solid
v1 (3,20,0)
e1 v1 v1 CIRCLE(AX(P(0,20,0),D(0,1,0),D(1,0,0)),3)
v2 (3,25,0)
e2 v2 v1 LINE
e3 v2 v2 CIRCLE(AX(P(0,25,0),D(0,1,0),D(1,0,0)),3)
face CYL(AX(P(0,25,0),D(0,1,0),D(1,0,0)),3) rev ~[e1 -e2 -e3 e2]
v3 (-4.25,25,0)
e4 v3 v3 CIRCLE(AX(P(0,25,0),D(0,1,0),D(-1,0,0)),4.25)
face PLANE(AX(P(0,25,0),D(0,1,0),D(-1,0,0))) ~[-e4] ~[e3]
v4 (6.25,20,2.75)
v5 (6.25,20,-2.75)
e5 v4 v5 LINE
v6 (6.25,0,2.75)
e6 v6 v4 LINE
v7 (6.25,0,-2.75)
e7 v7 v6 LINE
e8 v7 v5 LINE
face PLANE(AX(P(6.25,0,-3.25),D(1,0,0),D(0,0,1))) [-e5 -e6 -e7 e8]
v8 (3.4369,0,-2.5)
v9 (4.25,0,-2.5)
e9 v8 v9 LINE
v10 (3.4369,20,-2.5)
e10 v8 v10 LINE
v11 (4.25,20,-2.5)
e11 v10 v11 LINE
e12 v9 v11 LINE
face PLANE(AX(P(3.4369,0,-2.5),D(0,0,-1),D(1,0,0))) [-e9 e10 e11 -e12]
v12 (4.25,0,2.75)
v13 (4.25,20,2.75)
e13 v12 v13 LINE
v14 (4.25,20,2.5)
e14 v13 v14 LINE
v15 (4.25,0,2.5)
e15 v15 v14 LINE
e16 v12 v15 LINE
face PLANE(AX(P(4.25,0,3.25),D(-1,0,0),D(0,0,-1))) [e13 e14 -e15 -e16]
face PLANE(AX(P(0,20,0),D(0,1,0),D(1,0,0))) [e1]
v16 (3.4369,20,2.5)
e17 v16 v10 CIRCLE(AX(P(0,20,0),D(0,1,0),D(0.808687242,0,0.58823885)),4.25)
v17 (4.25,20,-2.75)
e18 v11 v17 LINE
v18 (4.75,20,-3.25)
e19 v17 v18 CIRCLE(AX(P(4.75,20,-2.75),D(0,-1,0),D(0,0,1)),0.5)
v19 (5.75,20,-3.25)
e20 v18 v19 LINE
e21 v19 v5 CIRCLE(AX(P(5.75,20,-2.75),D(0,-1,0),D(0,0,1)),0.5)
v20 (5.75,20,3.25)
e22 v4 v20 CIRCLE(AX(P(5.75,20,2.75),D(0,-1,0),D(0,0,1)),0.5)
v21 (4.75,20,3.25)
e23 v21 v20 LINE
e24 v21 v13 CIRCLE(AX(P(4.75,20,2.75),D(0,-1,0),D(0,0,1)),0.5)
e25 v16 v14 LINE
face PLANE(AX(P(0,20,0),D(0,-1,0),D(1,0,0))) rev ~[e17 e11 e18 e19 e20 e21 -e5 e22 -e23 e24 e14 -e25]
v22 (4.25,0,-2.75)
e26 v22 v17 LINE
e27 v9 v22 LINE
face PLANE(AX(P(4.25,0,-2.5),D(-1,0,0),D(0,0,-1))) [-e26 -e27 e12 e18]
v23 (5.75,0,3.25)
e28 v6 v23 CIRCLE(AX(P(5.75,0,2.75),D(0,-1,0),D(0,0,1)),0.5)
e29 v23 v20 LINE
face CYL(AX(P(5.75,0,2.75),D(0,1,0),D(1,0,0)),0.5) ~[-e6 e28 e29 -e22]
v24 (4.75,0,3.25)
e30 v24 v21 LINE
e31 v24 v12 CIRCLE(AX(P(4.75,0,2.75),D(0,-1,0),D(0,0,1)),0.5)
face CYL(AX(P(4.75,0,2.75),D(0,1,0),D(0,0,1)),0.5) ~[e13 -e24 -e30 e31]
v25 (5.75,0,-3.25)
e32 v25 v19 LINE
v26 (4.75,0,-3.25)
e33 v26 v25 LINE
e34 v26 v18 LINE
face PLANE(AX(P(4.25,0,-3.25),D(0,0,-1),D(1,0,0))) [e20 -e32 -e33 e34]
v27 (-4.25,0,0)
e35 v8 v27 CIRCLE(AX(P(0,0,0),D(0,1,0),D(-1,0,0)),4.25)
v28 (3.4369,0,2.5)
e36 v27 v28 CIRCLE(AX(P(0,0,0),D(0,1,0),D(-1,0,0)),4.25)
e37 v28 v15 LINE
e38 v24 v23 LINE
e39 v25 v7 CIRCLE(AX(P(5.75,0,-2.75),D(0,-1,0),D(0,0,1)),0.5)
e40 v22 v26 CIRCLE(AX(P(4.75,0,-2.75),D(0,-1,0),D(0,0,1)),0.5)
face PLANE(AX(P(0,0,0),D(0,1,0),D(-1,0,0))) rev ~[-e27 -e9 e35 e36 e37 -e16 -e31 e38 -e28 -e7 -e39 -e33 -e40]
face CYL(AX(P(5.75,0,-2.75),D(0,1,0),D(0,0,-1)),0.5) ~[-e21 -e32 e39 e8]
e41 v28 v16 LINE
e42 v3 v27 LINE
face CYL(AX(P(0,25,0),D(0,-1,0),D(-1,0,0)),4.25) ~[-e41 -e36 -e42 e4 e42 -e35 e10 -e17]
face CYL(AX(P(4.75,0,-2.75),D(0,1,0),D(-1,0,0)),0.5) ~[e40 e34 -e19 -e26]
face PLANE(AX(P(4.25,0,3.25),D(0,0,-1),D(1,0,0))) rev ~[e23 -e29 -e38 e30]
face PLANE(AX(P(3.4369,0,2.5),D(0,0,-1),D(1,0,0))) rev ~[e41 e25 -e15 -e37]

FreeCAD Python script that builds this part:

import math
import FreeCAD as App
import Part
import Sketcher
Q = App.Units.Quantity


def edges_at(feature, points):
    """Names of the edges that pass closest to the given points."""
    edges = feature.Shape.Edges
    near = lambda p: min(range(len(edges)), key=lambda i: edges[i].distToShape(Part.Vertex(*p))[0])
    return sorted({f"Edge{near(p) + 1}" for p in points})


def add_polygon(sketch, points):
    """Adds a closed chain of lines whose ends are joined by coincident constraints."""
    first, n = sketch.GeometryCount, len(points)
    for a, b in zip(points, points[1:] + points[:1]):
        sketch.addGeometry(Part.LineSegment(App.Vector(*a, 0), App.Vector(*b, 0)), False)
    for i in range(n):
        sketch.addConstraint(Sketcher.Constraint("Coincident", first + i, 2, first + (i + 1) % n, 1))

doc = App.newDocument("Part")
params = doc.addObject("Spreadsheet::Sheet", "Params")
for row, (alias, value) in enumerate([
    ("sketch1_height", "25 mm"),
    ("sketch1_width", "4.25 mm"),
    ("revolution_angle", "360 deg"),
    ("sketch2_diameter", "6 mm"),
    ("pocket1_length", "5 mm"),
    ("sketch3_width", "2 mm"),
    ("sketch3_height", "6.5 mm"),
    ("sketch3_radius", "4.25 mm"),
    ("pad1_length", "20 mm"),
    ("fillet_radius", "0.5 mm"),
], start=1):
    params.set(f"A{row}", alias)
    params.set(f"B{row}", "=" + value)
    params.setAlias(f"B{row}", alias)

body = doc.addObject("PartDesign::Body", "Body")

sketch1 = body.newObject("Sketcher::SketchObject", "Sketch")
sketch1.AttachmentSupport = (doc.getObject("XY_Plane"), [""])
sketch1.MapMode = "FlatFace"
add_polygon(sketch1, [(0, 0), (0, 25), (-4.2, 25), (-4.2, 0)])
sketch1.addConstraint([
    Sketcher.Constraint("Vertical", 0),
    Sketcher.Constraint("Horizontal", 1),
    Sketcher.Constraint("Vertical", 2),
    Sketcher.Constraint("Horizontal", 3),
    Sketcher.Constraint("Coincident", 3, 2, -1, 1),
    Sketcher.Constraint("DistanceY", 0, 1, 0, 2, Q("25 mm")),
    Sketcher.Constraint("DistanceX", 1, 2, 1, 1, Q("4.25 mm")),
])
sketch1.setExpression("Constraints[9]", "Params.sketch1_height")
sketch1.setExpression("Constraints[10]", "Params.sketch1_width")
revolution = body.newObject("PartDesign::Revolution", "Revolution")
revolution.Profile = sketch1
revolution.ReferenceAxis = (sketch1, ["V_Axis"])
revolution.setExpression("Angle", "Params.revolution_angle")

sketch2 = body.newObject("Sketcher::SketchObject", "Sketch001")
sketch2.AttachmentSupport = (doc.getObject("XZ_Plane"), [""])
sketch2.MapMode = "FlatFace"
sketch2.AttachmentOffset = App.Placement(App.Vector(0, 0, -25), App.Rotation())
sketch2.addGeometry(Part.Circle(App.Vector(0, 0, 0), App.Vector(0, 0, 1), 3), False)
sketch2.addConstraint([
    Sketcher.Constraint("Coincident", 0, 3, -1, 1),
    Sketcher.Constraint("Diameter", 0, Q("6 mm")),
])
sketch2.setExpression("Constraints[1]", "Params.sketch2_diameter")
pocket1 = body.newObject("PartDesign::Pocket", "Pocket")
pocket1.Profile = sketch2
pocket1.setExpression("Length", "Params.pocket1_length")
pocket1.Reversed = True

sketch3 = body.newObject("Sketcher::SketchObject", "Sketch002")
sketch3.AttachmentSupport = (doc.getObject("XZ_Plane"), [""])
sketch3.MapMode = "FlatFace"
sketch3.addGeometry([
    Part.LineSegment(App.Vector(3.4, -2.5, 0), App.Vector(4.2, -2.5, 0)),
    Part.LineSegment(App.Vector(4.2, -2.5, 0), App.Vector(4.2, -3.2, 0)),
    Part.LineSegment(App.Vector(4.2, -3.2, 0), App.Vector(6.2, -3.2, 0)),
    Part.LineSegment(App.Vector(6.2, -3.2, 0), App.Vector(6.2, 3.2, 0)),
    Part.LineSegment(App.Vector(6.2, 3.2, 0), App.Vector(4.2, 3.2, 0)),
    Part.LineSegment(App.Vector(4.2, 3.2, 0), App.Vector(4.2, 2.5, 0)),
    Part.LineSegment(App.Vector(4.2, 2.5, 0), App.Vector(3.4, 2.5, 0)),
    Part.ArcOfCircle(Part.Circle(App.Vector(0, 0, 0), App.Vector(0, 0, 1), 4.2), math.radians(-36), math.radians(36)),
], False)
sketch3.addConstraint([
    Sketcher.Constraint("Coincident", 0, 2, 1, 1),
    Sketcher.Constraint("Coincident", 1, 2, 2, 1),
    Sketcher.Constraint("Coincident", 2, 2, 3, 1),
    Sketcher.Constraint("Coincident", 3, 2, 4, 1),
    Sketcher.Constraint("Coincident", 4, 2, 5, 1),
    Sketcher.Constraint("Coincident", 5, 2, 6, 1),
    Sketcher.Constraint("Coincident", 6, 2, 7, 2),
    Sketcher.Constraint("Coincident", 7, 1, 0, 1),
    Sketcher.Constraint("Horizontal", 0),
    Sketcher.Constraint("Vertical", 1),
    Sketcher.Constraint("Horizontal", 2),
    Sketcher.Constraint("Vertical", 3),
    Sketcher.Constraint("Horizontal", 4),
    Sketcher.Constraint("Vertical", 5),
    Sketcher.Constraint("Horizontal", 6),
    Sketcher.Constraint("Coincident", 7, 3, -1, 1),
    Sketcher.Constraint("Symmetric", 1, 2, 4, 2, -1),
    Sketcher.Constraint("Vertical", 6, 2, 7, 1),
    Sketcher.Constraint("DistanceX", 2, 1, 2, 2, Q("2 mm")),
    Sketcher.Constraint("DistanceY", 3, 1, 3, 2, Q("6.5 mm")),
    Sketcher.Constraint("DistanceY", 0, 2, 5, 2, Q("5 mm")),
    Sketcher.Constraint("Radius", 7, Q("4.25 mm")),
    Sketcher.Constraint("DistanceX", 0, 1, 0, 2, Q("0.813 mm")),
])
sketch3.setExpression("Constraints[18]", "Params.sketch3_width")
sketch3.setExpression("Constraints[19]", "Params.sketch3_height")
sketch3.setExpression("Constraints[21]", "Params.sketch3_radius")
pad1 = body.newObject("PartDesign::Pad", "Pad")
pad1.Profile = sketch3
pad1.setExpression("Length", "Params.pad1_length")
pad1.Reversed = True
doc.recompute()

fillet = body.newObject("PartDesign::Fillet", "Fillet")
fillet.Base = (pad1, edges_at(pad1, [
    (6.25, 10, 3.25),
    (6.25, 10, -3.25),
    (4.25, 10, -3.25),
    (4.25, 10, 3.25),
]))
fillet.setExpression("Radius", "Params.fillet_radius")

doc.recompute()
